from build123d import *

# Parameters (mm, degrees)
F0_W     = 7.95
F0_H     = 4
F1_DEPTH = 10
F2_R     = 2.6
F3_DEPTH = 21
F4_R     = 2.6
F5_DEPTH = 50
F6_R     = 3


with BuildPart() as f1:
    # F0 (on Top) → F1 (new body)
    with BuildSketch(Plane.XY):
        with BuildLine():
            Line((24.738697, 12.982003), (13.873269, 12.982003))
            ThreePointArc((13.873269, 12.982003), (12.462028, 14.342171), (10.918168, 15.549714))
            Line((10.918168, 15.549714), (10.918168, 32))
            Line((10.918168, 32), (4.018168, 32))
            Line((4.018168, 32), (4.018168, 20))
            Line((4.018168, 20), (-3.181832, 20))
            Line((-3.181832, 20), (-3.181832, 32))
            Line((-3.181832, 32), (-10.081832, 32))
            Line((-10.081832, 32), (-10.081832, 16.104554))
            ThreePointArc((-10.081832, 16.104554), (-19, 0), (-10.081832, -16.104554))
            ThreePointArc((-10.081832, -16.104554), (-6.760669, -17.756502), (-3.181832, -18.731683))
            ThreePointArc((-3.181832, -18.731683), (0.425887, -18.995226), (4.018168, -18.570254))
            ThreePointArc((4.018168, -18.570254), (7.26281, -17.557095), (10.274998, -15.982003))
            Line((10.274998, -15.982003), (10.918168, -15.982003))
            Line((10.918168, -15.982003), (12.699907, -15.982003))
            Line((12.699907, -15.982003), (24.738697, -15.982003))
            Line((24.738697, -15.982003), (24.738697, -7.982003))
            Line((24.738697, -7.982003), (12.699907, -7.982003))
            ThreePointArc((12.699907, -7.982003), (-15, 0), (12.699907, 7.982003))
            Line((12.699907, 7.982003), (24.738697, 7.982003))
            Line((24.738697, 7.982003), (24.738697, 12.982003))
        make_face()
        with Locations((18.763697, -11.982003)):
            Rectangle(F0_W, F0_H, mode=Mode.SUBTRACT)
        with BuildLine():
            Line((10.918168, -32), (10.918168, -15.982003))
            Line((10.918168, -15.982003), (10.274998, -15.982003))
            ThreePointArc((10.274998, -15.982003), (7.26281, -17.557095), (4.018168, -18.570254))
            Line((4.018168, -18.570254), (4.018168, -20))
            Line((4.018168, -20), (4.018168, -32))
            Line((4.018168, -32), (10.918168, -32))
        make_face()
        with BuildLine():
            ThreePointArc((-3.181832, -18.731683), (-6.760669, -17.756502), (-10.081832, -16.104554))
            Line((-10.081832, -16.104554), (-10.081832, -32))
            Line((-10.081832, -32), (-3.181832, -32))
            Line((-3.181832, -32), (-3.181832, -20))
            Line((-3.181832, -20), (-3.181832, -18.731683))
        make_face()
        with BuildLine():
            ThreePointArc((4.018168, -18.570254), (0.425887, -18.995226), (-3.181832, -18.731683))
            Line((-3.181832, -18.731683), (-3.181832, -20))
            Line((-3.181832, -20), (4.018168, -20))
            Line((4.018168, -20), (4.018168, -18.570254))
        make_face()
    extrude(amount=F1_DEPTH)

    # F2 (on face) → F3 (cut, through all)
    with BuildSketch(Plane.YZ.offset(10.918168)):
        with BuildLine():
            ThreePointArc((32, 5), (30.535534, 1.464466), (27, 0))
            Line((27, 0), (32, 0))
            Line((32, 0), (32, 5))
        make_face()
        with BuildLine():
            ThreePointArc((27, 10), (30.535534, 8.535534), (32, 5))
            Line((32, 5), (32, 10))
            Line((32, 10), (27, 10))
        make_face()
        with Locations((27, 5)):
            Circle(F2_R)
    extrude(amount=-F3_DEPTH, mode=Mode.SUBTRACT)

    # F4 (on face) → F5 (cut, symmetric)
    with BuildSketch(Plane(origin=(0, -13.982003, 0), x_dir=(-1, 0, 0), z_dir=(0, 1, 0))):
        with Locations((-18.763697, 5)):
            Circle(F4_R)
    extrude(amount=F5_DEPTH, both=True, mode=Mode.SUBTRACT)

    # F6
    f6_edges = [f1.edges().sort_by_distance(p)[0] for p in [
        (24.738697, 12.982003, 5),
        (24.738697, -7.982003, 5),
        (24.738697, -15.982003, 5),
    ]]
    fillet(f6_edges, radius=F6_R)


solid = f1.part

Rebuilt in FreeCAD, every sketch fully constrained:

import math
import FreeCAD as App
import Part
import Sketcher
Q = App.Units.Quantity


def edges_at(feature, points):
    """Names of the edges that pass closest to the given points."""
    edges = feature.Shape.Edges
    near = lambda p: min(range(len(edges)), key=lambda i: edges[i].distToShape(Part.Vertex(*p))[0])
    return sorted({f"Edge{near(p) + 1}" for p in points})


def add_polygon(sketch, points):
    """Adds a closed chain of lines whose ends are joined by coincident constraints."""
    first, n = sketch.GeometryCount, len(points)
    for a, b in zip(points, points[1:] + points[:1]):
        sketch.addGeometry(Part.LineSegment(App.Vector(*a, 0), App.Vector(*b, 0)), False)
    for i in range(n):
        sketch.addConstraint(Sketcher.Constraint("Coincident", first + i, 2, first + (i + 1) % n, 1))

doc = App.newDocument("Part")
body = doc.addObject("PartDesign::Body", "Body")

# Sketch on XY plane
sketch1 = body.newObject("Sketcher::SketchObject", "Sketch")
sketch1.AttachmentSupport = (doc.getObject("XY_Plane"), [""])
sketch1.MapMode = "FlatFace"
sketch1.addGeometry(Part.LineSegment(App.Vector(24.7, 13, 0), App.Vector(13.9, 13, 0)), False)  # 0
sketch1.addGeometry(Part.ArcOfCircle(Part.Circle(App.Vector(0, 0, 0), App.Vector(0, 0, 1), 19), math.radians(43.1), math.radians(54.93)), False)  # 1
sketch1.addGeometry(Part.LineSegment(App.Vector(10.9, 15.5, 0), App.Vector(10.9, 32, 0)), False)  # 2
sketch1.addGeometry(Part.LineSegment(App.Vector(10.9, 32, 0), App.Vector(4, 32, 0)), False)  # 3
sketch1.addGeometry(Part.LineSegment(App.Vector(4, 32, 0), App.Vector(4, 20, 0)), False)  # 4
sketch1.addGeometry(Part.LineSegment(App.Vector(4, 20, 0), App.Vector(-3.2, 20, 0)), False)  # 5
sketch1.addGeometry(Part.LineSegment(App.Vector(-3.2, 20, 0), App.Vector(-3.2, 32, 0)), False)  # 6
sketch1.addGeometry(Part.LineSegment(App.Vector(-3.2, 32, 0), App.Vector(-10.1, 32, 0)), False)  # 7
sketch1.addGeometry(Part.LineSegment(App.Vector(-10.1, 32, 0), App.Vector(-10.1, 16.1, 0)), False)  # 8
sketch1.addGeometry(Part.ArcOfCircle(Part.Circle(App.Vector(0, 0, 0), App.Vector(0, 0, 1), 19), math.radians(122), math.radians(238)), False)  # 9
sketch1.addGeometry(Part.LineSegment(App.Vector(-10.1, -16.1, 0), App.Vector(-10.1, -32, 0)), False)  # 10
sketch1.addGeometry(Part.LineSegment(App.Vector(-10.1, -32, 0), App.Vector(-3.2, -32, 0)), False)  # 11
sketch1.addGeometry(Part.LineSegment(App.Vector(-3.2, -32, 0), App.Vector(-3.2, -20, 0)), False)  # 12
sketch1.addGeometry(Part.LineSegment(App.Vector(-3.2, -20, 0), App.Vector(4, -20, 0)), False)  # 13
sketch1.addGeometry(Part.LineSegment(App.Vector(4, -20, 0), App.Vector(4, -32, 0)), False)  # 14
sketch1.addGeometry(Part.LineSegment(App.Vector(4, -32, 0), App.Vector(10.9, -32, 0)), False)  # 15
sketch1.addGeometry(Part.LineSegment(App.Vector(10.9, -32, 0), App.Vector(10.9, -16, 0)), False)  # 16
sketch1.addGeometry(Part.LineSegment(App.Vector(10.9, -16, 0), App.Vector(24.7, -16, 0)), False)  # 17
sketch1.addGeometry(Part.LineSegment(App.Vector(24.7, -16, 0), App.Vector(24.7, -8, 0)), False)  # 18
sketch1.addGeometry(Part.LineSegment(App.Vector(24.7, -8, 0), App.Vector(12.7, -8, 0)), False)  # 19
sketch1.addGeometry(Part.ArcOfCircle(Part.Circle(App.Vector(0, 0, 0), App.Vector(0, 0, 1), 15), math.radians(32), math.radians(328)), False)  # 20
sketch1.addGeometry(Part.LineSegment(App.Vector(12.7, 8, 0), App.Vector(24.7, 8, 0)), False)  # 21
sketch1.addGeometry(Part.LineSegment(App.Vector(24.7, 8, 0), App.Vector(24.7, 13, 0)), False)  # 22
add_polygon(sketch1, [(22.7, -14), (14.8, -14), (14.8, -10), (22.7, -10)])  # lines 23-26
sketch1.addConstraint([
    Sketcher.Constraint("Coincident", 0, 2, 1, 1),
    Sketcher.Constraint("Coincident", 1, 2, 2, 1),
    Sketcher.Constraint("Coincident", 2, 2, 3, 1),
    Sketcher.Constraint("Coincident", 3, 2, 4, 1),
    Sketcher.Constraint("Coincident", 4, 2, 5, 1),
    Sketcher.Constraint("Coincident", 5, 2, 6, 1),
    Sketcher.Constraint("Coincident", 6, 2, 7, 1),
    Sketcher.Constraint("Coincident", 7, 2, 8, 1),
    Sketcher.Constraint("Coincident", 8, 2, 9, 1),
    Sketcher.Constraint("Coincident", 9, 2, 10, 1),
    Sketcher.Constraint("Coincident", 10, 2, 11, 1),
    Sketcher.Constraint("Coincident", 11, 2, 12, 1),
    Sketcher.Constraint("Coincident", 12, 2, 13, 1),
    Sketcher.Constraint("Coincident", 13, 2, 14, 1),
    Sketcher.Constraint("Coincident", 14, 2, 15, 1),
    Sketcher.Constraint("Coincident", 15, 2, 16, 1),
    Sketcher.Constraint("Coincident", 16, 2, 17, 1),
    Sketcher.Constraint("Coincident", 17, 2, 18, 1),
    Sketcher.Constraint("Coincident", 18, 2, 19, 1),
    Sketcher.Constraint("Coincident", 19, 2, 20, 2),
    Sketcher.Constraint("Coincident", 20, 1, 21, 1),
    Sketcher.Constraint("Coincident", 21, 2, 22, 1),
    Sketcher.Constraint("Coincident", 22, 2, 0, 1),
    Sketcher.Constraint("Horizontal", 0),
    Sketcher.Constraint("Vertical", 2),
    Sketcher.Constraint("Horizontal", 3),
    Sketcher.Constraint("Vertical", 4),
    Sketcher.Constraint("Horizontal", 5),
    Sketcher.Constraint("Vertical", 6),
    Sketcher.Constraint("Horizontal", 7),
    Sketcher.Constraint("Vertical", 8),
    Sketcher.Constraint("Vertical", 10),
    Sketcher.Constraint("Horizontal", 11),
    Sketcher.Constraint("Vertical", 12),
    Sketcher.Constraint("Horizontal", 13),
    Sketcher.Constraint("Vertical", 14),
    Sketcher.Constraint("Horizontal", 15),
    Sketcher.Constraint("Vertical", 16),
    Sketcher.Constraint("Horizontal", 17),
    Sketcher.Constraint("Vertical", 18),
    Sketcher.Constraint("Horizontal", 19),
    Sketcher.Constraint("Horizontal", 21),
    Sketcher.Constraint("Vertical", 22),
    Sketcher.Constraint("Horizontal", 23),
    Sketcher.Constraint("Vertical", 24),
    Sketcher.Constraint("Horizontal", 25),
    Sketcher.Constraint("Vertical", 26),
    Sketcher.Constraint("Coincident", 9, 3, -1, 1),
    Sketcher.Constraint("Coincident", 20, 3, -1, 1),
    Sketcher.Constraint("Symmetric", 7, 2, 10, 2, -1),
    Sketcher.Constraint("Symmetric", 5, 2, 12, 2, -1),
    Sketcher.Constraint("Symmetric", 3, 2, 14, 2, -1),
    Sketcher.Constraint("Symmetric", 18, 2, 21, 2, -1),
    Sketcher.Constraint("Horizontal", 3, 2, 6, 2),
    Sketcher.Constraint("Vertical", 2, 2, 15, 2),
    Sketcher.Constraint("Equal", 3, 7),
    Sketcher.Constraint("Radius", 9, Q("19 mm")),
    Sketcher.Constraint("Radius", 20, Q("15 mm")),
    Sketcher.Constraint("DistanceY", 4, 2, 4, 1, Q("12 mm")),
    Sketcher.Constraint("DistanceY", 18, 1, 18, 2, Q("8 mm")),
    Sketcher.Constraint("DistanceY", 22, 1, 22, 2, Q("5 mm")),
    Sketcher.Constraint("DistanceY", 24, 1, 24, 2, Q("4 mm")),
    Sketcher.Constraint("DistanceX", 3, 2, 3, 1, Q("6.9 mm")),
    Sketcher.Constraint("DistanceX", 5, 2, 5, 1, Q("7.2 mm")),
    Sketcher.Constraint("DistanceY", -1, 1, 2, 2, Q("32 mm")),
    Sketcher.Constraint("DistanceY", 16, 2, 23, 2, Q("2 mm")),
    Sketcher.Constraint("DistanceX", 25, 2, 18, 2, Q("2 mm")),
    Sketcher.Constraint("DistanceX", 23, 2, 23, 1, Q("7.95 mm")),
    Sketcher.Constraint("Radius", 1, Q("18.999928 mm")),
    Sketcher.Constraint("DistanceX", 17, 1, 17, 2, Q("13.820529 mm")),
    Sketcher.Constraint("DistanceX", 19, 2, 19, 1, Q("12.03879 mm")),
    Sketcher.Constraint("DistanceX", 1, 2, 0, 2, Q("2.955101 mm")),
    Sketcher.Constraint("DistanceY", 1, 3, 8, 2, Q("16.104499 mm")),
    Sketcher.Constraint("DistanceY", 2, 1, 2, 2, Q("16.450286 mm")),
])
pad1 = body.newObject("PartDesign::Pad", "Pad")
pad1.Profile = sketch1
pad1.Length = 10

# Sketch on YZ plane
sketch2 = body.newObject("Sketcher::SketchObject", "Sketch001")
sketch2.AttachmentSupport = (doc.getObject("YZ_Plane"), [""])
sketch2.MapMode = "FlatFace"
sketch2.AttachmentOffset = App.Placement(App.Vector(0, 0, 10.918168), App.Rotation())
sketch2.addGeometry([
    Part.ArcOfCircle(Part.Circle(App.Vector(27, 5, 0), App.Vector(0, 0, 1), 5), math.radians(-90), math.radians(0)),  # 0
    Part.LineSegment(App.Vector(27, 0, 0), App.Vector(32, 0, 0)),  # 1
    Part.LineSegment(App.Vector(32, 0, 0), App.Vector(32, 5, 0)),  # 2
    Part.ArcOfCircle(Part.Circle(App.Vector(27, 5, 0), App.Vector(0, 0, 1), 5), math.radians(0), math.radians(90)),  # 3
    Part.LineSegment(App.Vector(32, 5, 0), App.Vector(32, 10, 0)),  # 4
    Part.LineSegment(App.Vector(32, 10, 0), App.Vector(27, 10, 0)),  # 5
    Part.Circle(App.Vector(27, 5, 0), App.Vector(0, 0, 1), 2.6),  # 6
], False)
sketch2.addConstraint([
    Sketcher.Constraint("Tangent", 0, 1, 1, 1),
    Sketcher.Constraint("Coincident", 1, 2, 2, 1),
    Sketcher.Constraint("Tangent", 2, 2, 0, 2),
    Sketcher.Constraint("Tangent", 3, 1, 4, 1),
    Sketcher.Constraint("Coincident", 4, 2, 5, 1),
    Sketcher.Constraint("Tangent", 5, 2, 3, 2),
    Sketcher.Constraint("Horizontal", 1),
    Sketcher.Constraint("Vertical", 2),
    Sketcher.Constraint("Vertical", 4),
    Sketcher.Constraint("Horizontal", 5),
    Sketcher.Constraint("Coincident", 3, 3, 0, 3),
    Sketcher.Constraint("Coincident", 6, 3, 0, 3),
    Sketcher.Constraint("Equal", 0, 3),
    Sketcher.Constraint("PointOnObject", 0, 1, -1),
    Sketcher.Constraint("Radius", 0, Q("5 mm")),
    Sketcher.Constraint("Diameter", 6, Q("5.2 mm")),
    Sketcher.Constraint("DistanceX", -1, 1, 0, 3, Q("27 mm")),
])
pocket1 = body.newObject("PartDesign::Pocket", "Pocket")
pocket1.Profile = sketch2
pocket1.Type = "ThroughAll"

# Sketch on XZ plane
sketch3 = body.newObject("Sketcher::SketchObject", "Sketch002")
sketch3.AttachmentSupport = (doc.getObject("XZ_Plane"), [""])
sketch3.MapMode = "FlatFace"
sketch3.AttachmentOffset = App.Placement(App.Vector(0, 0, 13.982003), App.Rotation())
sketch3.addGeometry(Part.Circle(App.Vector(18.8, 5, 0), App.Vector(0, 0, 1), 2.6), False)
sketch3.addConstraint([
    Sketcher.Constraint("Diameter", 0, Q("5.2 mm")),
    Sketcher.Constraint("DistanceY", -1, 1, 0, 3, Q("5 mm")),
    Sketcher.Constraint("DistanceX", -1, 1, 0, 3, Q("18.763697 mm")),
])
pocket2 = body.newObject("PartDesign::Pocket", "Pocket001")
pocket2.Profile = sketch3
pocket2.Length = 100
pocket2.Midplane = True
doc.recompute()

fillet = body.newObject("PartDesign::Fillet", "Fillet")
fillet.Base = (pocket2, edges_at(pocket2, [(24.739, 12.982, 5), (24.739, -7.982, 5), (24.739, -15.982, 5)]))
fillet.Radius = 3

doc.recompute()
